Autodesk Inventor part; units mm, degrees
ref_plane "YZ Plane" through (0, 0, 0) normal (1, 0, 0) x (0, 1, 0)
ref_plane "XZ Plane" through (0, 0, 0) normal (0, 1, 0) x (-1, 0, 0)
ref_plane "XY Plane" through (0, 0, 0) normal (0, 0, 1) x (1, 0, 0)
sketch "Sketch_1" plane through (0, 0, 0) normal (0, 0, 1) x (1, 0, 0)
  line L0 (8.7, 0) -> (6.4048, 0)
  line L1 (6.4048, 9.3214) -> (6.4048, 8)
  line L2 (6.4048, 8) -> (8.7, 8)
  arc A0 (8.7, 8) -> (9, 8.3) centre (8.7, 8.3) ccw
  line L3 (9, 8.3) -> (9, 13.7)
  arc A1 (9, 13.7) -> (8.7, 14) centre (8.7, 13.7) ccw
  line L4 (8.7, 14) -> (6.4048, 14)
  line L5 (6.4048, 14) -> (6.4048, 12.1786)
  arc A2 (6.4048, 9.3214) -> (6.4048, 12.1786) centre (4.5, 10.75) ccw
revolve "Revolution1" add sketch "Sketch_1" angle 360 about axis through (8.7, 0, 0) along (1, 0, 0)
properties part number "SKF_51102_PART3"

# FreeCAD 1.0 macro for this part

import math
import FreeCAD as App
import Part
import Sketcher

doc = App.newDocument("Part")
body = doc.addObject("PartDesign::Body", "Body")

# Sketch on XY plane
sketch1 = body.newObject("Sketcher::SketchObject", "Sketch")
sketch1.AttachmentSupport = (doc.getObject("XY_Plane"), [""])
sketch1.MapMode = "FlatFace"
sketch1.addGeometry(Part.ArcOfCircle(Part.Circle(App.Vector(4.5, 10.75, 0), App.Vector(0, 0, 1), 2.381), math.radians(-36.869898), math.radians(36.869898)), False)
sketch1.addGeometry(Part.LineSegment(App.Vector(6.4048, 9.3214, 0), App.Vector(6.4048, 8, 0)), False)
sketch1.addGeometry(Part.LineSegment(App.Vector(6.4048, 8, 0), App.Vector(8.7, 8, 0)), False)
sketch1.addGeometry(Part.ArcOfCircle(Part.Circle(App.Vector(8.7, 8.3, 0), App.Vector(0, 0, 1), 0.3), math.radians(-90), math.radians(0)), False)
sketch1.addGeometry(Part.LineSegment(App.Vector(9, 8.3, 0), App.Vector(9, 13.7, 0)), False)
sketch1.addGeometry(Part.ArcOfCircle(Part.Circle(App.Vector(8.7, 13.7, 0), App.Vector(0, 0, 1), 0.3), math.radians(0), math.radians(90)), False)
sketch1.addGeometry(Part.LineSegment(App.Vector(8.7, 14, 0), App.Vector(6.4048, 14, 0)), False)
sketch1.addGeometry(Part.LineSegment(App.Vector(6.4048, 14, 0), App.Vector(6.4048, 12.1786, 0)), False)
sketch1.addConstraint(Sketcher.Constraint("Coincident", 0, 1, 1, 1))
sketch1.addConstraint(Sketcher.Constraint("Coincident", 1, 2, 2, 1))
sketch1.addConstraint(Sketcher.Constraint("Tangent", 2, 2, 3, 1))
sketch1.addConstraint(Sketcher.Constraint("Tangent", 3, 2, 4, 1))
sketch1.addConstraint(Sketcher.Constraint("Tangent", 4, 2, 5, 1))
sketch1.addConstraint(Sketcher.Constraint("Tangent", 5, 2, 6, 1))
sketch1.addConstraint(Sketcher.Constraint("Coincident", 6, 2, 7, 1))
sketch1.addConstraint(Sketcher.Constraint("Coincident", 7, 2, 0, 2))
sketch1.addConstraint(Sketcher.Constraint("Vertical", 1))
sketch1.addConstraint(Sketcher.Constraint("Horizontal", 2))
sketch1.addConstraint(Sketcher.Constraint("Vertical", 4))
sketch1.addConstraint(Sketcher.Constraint("Horizontal", 6))
sketch1.addConstraint(Sketcher.Constraint("Vertical", 7))
sketch1.addConstraint(Sketcher.Constraint("Equal", 3, 5))
sketch1.addConstraint(Sketcher.Constraint("Vertical", 1, 2, 6, 2))
sketch1.addConstraint(Sketcher.Constraint("Radius", 3, 0.3))
sketch1.addConstraint(Sketcher.Constraint("DistanceY", 4, 1, 4, 2, 5.4))
sketch1.addConstraint(Sketcher.Constraint("DistanceY", -1, 1, 1, 2, 8.0))
sketch1.addConstraint(Sketcher.Constraint("DistanceX", -1, 1, 3, 2, 9.0))
sketch1.addConstraint(Sketcher.Constraint("Radius", 0, 2.381))
sketch1.addConstraint(Sketcher.Constraint("DistanceX", -1, 1, 0, 3, 4.5))
sketch1.addConstraint(Sketcher.Constraint("DistanceY", -1, 1, 0, 3, 10.75))
sketch1.addConstraint(Sketcher.Constraint("DistanceX", 2, 1, 2, 2, 2.2952))
revolution = body.newObject("PartDesign::Revolution", "Revolution")
revolution.Profile = sketch1
revolution.ReferenceAxis = (sketch1, ["H_Axis"])
revolution.Angle = 360

doc.recompute()
